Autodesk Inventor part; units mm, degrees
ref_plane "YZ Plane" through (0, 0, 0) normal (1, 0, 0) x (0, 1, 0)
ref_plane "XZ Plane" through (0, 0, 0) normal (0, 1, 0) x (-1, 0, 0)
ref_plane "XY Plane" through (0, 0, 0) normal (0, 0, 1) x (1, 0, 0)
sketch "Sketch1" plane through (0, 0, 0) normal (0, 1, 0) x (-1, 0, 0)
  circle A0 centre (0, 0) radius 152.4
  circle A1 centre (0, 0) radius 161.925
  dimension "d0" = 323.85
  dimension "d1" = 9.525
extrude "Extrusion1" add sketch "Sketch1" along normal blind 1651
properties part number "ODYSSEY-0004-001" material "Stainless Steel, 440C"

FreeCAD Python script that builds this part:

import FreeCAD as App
import Part
import Sketcher
from FreeCAD import Vector
Q = App.Units.Quantity

doc = App.newDocument("Part")
body = doc.addObject("PartDesign::Body", "Body")

# Sketch on XZ plane
sketch1 = body.newObject("Sketcher::SketchObject", "Sketch")
sketch1.AttachmentSupport = (doc.getObject("XZ_Plane"), [""])
sketch1.MapMode = "FlatFace"
sketch1.addGeometry([
    Part.Circle(Vector(0, 0, 0), Vector(0, 0, 1), 162),
    Part.Circle(Vector(0, 0, 0), Vector(0, 0, 1), 152),
], False)
sketch1.addConstraint([
    Sketcher.Constraint("Coincident", 0, 3, -1, 1),
    Sketcher.Constraint("Coincident", 1, 3, -1, 1),
    Sketcher.Constraint("Diameter", 0, Q("12.75 in")),
    Sketcher.Constraint("Diameter", 1, Q("12 in")),
])
pad1 = body.newObject("PartDesign::Pad", "Pad")
pad1.Profile = sketch1
pad1.Length = Q("65 in")
pad1.Reversed = True

doc.recompute()
